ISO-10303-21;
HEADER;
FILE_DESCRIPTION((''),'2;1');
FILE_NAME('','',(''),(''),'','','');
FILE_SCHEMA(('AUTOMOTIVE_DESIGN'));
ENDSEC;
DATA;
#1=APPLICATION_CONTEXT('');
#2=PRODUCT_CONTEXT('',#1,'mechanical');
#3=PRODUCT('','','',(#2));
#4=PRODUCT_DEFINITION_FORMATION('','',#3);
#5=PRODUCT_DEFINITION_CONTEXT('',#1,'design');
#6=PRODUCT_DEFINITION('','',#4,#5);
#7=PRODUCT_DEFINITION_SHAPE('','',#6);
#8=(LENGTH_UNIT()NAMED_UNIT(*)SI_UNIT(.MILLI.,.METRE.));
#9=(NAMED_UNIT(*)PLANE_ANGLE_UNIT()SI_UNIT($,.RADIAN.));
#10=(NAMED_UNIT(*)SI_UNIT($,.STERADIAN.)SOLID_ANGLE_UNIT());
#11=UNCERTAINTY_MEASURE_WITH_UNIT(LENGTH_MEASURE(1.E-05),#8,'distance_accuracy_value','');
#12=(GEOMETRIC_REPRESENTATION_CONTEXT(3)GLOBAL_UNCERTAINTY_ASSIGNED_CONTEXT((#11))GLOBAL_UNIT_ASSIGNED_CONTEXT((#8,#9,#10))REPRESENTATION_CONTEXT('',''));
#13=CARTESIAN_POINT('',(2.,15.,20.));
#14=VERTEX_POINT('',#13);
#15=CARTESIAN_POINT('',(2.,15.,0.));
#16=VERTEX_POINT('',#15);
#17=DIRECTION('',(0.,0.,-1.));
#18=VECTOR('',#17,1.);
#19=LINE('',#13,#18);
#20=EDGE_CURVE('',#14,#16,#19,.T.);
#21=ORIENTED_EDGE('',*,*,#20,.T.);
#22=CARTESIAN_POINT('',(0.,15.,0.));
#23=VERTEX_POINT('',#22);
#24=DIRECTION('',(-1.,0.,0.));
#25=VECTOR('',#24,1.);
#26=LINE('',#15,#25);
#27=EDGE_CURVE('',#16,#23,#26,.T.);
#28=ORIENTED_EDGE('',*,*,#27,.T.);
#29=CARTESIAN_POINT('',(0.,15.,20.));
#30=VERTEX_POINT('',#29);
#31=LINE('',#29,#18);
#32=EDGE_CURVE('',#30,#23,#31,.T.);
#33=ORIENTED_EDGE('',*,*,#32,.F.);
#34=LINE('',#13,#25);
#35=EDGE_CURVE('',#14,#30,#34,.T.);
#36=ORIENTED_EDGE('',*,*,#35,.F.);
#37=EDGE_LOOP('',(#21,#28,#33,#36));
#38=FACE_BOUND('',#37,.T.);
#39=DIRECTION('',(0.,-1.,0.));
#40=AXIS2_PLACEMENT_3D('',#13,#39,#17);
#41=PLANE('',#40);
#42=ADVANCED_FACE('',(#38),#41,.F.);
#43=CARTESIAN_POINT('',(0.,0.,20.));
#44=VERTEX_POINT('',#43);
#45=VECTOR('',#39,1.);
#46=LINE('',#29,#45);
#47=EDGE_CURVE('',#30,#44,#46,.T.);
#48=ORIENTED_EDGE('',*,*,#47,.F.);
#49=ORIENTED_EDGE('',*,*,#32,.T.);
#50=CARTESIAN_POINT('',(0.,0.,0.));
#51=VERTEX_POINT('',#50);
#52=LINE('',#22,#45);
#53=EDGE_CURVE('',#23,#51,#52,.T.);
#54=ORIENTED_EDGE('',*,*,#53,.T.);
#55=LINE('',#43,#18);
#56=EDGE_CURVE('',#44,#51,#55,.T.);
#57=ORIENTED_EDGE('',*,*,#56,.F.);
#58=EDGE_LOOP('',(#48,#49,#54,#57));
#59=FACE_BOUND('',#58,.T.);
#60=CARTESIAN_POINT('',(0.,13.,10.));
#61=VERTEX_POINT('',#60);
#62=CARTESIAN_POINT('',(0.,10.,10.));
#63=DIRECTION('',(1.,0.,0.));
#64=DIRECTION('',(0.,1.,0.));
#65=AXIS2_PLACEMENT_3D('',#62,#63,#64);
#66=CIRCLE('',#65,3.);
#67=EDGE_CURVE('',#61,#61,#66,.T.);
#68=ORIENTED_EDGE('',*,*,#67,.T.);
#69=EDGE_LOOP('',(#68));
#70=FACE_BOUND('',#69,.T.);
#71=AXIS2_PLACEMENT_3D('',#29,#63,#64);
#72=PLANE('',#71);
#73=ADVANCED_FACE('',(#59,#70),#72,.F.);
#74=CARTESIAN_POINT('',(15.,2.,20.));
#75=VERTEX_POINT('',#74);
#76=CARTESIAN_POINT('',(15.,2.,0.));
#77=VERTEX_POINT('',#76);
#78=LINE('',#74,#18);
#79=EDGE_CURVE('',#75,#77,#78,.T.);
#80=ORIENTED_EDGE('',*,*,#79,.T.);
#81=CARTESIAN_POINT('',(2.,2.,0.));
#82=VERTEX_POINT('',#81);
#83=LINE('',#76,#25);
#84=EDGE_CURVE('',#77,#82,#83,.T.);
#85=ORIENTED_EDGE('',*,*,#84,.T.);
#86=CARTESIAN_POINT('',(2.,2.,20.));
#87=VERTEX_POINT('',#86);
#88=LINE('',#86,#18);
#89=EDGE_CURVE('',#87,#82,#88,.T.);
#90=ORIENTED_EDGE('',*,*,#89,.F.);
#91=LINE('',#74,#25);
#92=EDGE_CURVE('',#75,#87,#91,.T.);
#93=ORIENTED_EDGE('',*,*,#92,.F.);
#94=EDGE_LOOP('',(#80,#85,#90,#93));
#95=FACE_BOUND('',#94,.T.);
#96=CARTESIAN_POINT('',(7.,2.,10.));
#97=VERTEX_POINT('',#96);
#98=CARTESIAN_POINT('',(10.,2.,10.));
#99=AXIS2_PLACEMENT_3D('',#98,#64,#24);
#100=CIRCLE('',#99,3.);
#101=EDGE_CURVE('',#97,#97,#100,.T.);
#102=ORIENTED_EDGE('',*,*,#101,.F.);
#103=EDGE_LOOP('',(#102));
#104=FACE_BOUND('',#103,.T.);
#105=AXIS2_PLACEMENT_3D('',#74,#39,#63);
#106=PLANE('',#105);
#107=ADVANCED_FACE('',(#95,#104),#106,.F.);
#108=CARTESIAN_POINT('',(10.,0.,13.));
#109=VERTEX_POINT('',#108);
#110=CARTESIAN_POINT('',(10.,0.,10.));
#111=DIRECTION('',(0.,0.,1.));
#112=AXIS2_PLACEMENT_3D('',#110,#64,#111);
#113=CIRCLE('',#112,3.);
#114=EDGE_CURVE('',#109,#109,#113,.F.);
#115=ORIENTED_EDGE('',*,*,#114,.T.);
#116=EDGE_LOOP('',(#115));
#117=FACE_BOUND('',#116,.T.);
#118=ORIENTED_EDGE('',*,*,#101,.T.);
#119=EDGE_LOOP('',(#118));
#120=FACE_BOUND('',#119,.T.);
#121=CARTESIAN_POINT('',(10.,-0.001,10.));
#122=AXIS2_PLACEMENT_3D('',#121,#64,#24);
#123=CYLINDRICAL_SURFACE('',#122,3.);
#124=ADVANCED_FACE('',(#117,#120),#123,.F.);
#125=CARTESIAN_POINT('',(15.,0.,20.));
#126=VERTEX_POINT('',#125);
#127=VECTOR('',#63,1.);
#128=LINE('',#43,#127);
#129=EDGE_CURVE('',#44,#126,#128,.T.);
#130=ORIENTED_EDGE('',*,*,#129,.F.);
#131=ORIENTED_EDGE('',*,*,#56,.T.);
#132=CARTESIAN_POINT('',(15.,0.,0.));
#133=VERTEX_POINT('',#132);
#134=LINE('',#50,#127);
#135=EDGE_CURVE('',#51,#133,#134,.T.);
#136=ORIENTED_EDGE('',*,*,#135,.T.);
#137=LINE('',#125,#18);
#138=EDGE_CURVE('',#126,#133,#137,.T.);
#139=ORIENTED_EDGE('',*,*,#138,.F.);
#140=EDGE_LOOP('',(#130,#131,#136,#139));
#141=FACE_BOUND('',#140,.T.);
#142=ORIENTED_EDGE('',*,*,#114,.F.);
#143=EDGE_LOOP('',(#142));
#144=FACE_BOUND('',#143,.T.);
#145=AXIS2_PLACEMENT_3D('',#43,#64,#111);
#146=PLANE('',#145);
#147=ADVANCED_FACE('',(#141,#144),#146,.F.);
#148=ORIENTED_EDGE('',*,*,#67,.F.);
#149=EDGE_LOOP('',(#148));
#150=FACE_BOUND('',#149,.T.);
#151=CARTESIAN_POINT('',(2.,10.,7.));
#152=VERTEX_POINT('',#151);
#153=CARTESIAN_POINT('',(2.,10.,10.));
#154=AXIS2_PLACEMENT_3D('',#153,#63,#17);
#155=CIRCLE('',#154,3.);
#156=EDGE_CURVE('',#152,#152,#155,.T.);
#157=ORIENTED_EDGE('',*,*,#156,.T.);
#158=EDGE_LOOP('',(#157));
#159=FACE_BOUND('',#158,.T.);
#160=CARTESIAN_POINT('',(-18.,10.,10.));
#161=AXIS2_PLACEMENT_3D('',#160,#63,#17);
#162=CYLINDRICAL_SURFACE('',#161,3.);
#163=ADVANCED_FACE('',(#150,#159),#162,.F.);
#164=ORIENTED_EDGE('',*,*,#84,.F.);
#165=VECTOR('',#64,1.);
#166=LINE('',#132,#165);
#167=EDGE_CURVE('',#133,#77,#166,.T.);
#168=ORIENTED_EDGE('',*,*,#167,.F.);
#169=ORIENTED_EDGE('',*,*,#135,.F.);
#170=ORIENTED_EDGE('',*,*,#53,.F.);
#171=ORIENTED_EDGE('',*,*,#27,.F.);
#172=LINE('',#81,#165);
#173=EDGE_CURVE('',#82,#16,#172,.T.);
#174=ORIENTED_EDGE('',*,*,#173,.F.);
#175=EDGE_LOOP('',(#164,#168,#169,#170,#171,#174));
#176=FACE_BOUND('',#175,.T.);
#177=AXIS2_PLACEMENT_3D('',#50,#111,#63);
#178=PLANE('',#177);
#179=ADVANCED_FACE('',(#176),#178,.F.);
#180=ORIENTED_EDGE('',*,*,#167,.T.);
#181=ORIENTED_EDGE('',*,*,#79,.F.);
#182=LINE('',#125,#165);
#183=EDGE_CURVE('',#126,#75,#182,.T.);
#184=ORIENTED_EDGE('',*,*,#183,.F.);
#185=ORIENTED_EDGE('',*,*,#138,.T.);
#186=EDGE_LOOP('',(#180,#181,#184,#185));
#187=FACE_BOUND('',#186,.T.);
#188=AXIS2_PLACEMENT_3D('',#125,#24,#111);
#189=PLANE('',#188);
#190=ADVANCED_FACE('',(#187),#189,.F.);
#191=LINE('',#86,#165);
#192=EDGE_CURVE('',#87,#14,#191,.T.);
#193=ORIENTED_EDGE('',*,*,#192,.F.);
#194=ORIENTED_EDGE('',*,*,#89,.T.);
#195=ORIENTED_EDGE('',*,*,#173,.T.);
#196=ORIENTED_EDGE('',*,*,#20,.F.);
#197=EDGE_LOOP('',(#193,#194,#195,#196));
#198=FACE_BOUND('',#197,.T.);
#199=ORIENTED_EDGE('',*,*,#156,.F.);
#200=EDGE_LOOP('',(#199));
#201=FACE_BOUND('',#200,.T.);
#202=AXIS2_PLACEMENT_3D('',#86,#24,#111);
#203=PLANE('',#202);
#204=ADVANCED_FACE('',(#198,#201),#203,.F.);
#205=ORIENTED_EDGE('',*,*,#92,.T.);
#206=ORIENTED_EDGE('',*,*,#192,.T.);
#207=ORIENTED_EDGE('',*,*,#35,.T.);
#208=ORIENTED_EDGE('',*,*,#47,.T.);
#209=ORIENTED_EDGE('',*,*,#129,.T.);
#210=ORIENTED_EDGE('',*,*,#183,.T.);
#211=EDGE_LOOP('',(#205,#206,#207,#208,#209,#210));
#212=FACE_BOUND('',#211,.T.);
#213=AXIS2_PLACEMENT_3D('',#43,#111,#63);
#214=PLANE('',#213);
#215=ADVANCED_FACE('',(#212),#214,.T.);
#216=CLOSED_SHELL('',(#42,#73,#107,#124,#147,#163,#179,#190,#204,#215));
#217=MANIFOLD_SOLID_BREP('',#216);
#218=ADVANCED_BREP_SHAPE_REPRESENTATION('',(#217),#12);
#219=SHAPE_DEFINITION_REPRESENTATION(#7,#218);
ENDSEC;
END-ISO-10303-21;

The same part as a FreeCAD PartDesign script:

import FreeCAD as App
import Part
import Sketcher

V = App.Vector


def add_polygon(sketch, points):
    """Adds a closed chain of lines whose ends are joined by coincident constraints."""
    first, n = sketch.GeometryCount, len(points)
    for a, b in zip(points, points[1:] + points[:1]):
        sketch.addGeometry(Part.LineSegment(App.Vector(*a, 0), App.Vector(*b, 0)), False)
    for i in range(n):
        sketch.addConstraint(Sketcher.Constraint("Coincident", first + i, 2, first + (i + 1) % n, 1))

doc = App.newDocument("Part")
body = doc.addObject("PartDesign::Body", "Body")

# Sketch on XY plane
sketch1 = doc.addObject("Sketcher::SketchObject", "Sketch")
body.addObject(sketch1)
sketch1.AttachmentSupport = (doc.XY_Plane, [""])
sketch1.MapMode = "FlatFace"
add_polygon(sketch1, [(0, 0), (15, 0), (15, 2), (2, 2), (2, 15), (0, 15)])  # lines 0-5
sketch1.addConstraint([
    Sketcher.Constraint("Horizontal", 0),
    Sketcher.Constraint("Vertical", 1),
    Sketcher.Constraint("Horizontal", 2),
    Sketcher.Constraint("Vertical", 3),
    Sketcher.Constraint("Horizontal", 4),
    Sketcher.Constraint("Vertical", 5),
    Sketcher.Constraint("Coincident", 5, 2, -1, 1),
    Sketcher.Constraint("Equal", 4, 1),
    Sketcher.Constraint("Equal", 2, 3),
    Sketcher.Constraint("DistanceX", 0, 1, 0, 2, 15.0),
    Sketcher.Constraint("DistanceX", 2, 2, 2, 1, 13.0),
])
pad1 = doc.addObject("PartDesign::Pad", "Pad")
body.addObject(pad1)
pad1.Profile = sketch1
pad1.Length = 20

# Sketch on XZ plane
sketch2 = doc.addObject("Sketcher::SketchObject", "Sketch001")
body.addObject(sketch2)
sketch2.AttachmentSupport = (doc.XZ_Plane, [""])
sketch2.MapMode = "FlatFace"
sketch2.AttachmentOffset = App.Placement(V(0, 0, -2), App.Rotation())
sketch2.addGeometry(Part.Circle(V(10, 10, 0), V(0, 0, 1), 3), False)
sketch2.addConstraint([
    Sketcher.Constraint("Diameter", 0, 6.0),
    Sketcher.Constraint("DistanceX", -1, 1, 0, 3, 10.0),
    Sketcher.Constraint("DistanceY", -1, 1, 0, 3, 10.0),
])
pocket1 = doc.addObject("PartDesign::Pocket", "Pocket")
body.addObject(pocket1)
pocket1.Profile = sketch2
pocket1.Type = "UpToFirst"
pocket1.Reversed = True

# Sketch on YZ plane
sketch3 = doc.addObject("Sketcher::SketchObject", "Sketch002")
body.addObject(sketch3)
sketch3.AttachmentSupport = (doc.YZ_Plane, [""])
sketch3.MapMode = "FlatFace"
sketch3.AttachmentOffset = App.Placement(V(0, 0, 2), App.Rotation())
sketch3.addGeometry(Part.Circle(V(10, 10, 0), V(0, 0, 1), 3), False)
sketch3.addConstraint([
    Sketcher.Constraint("Diameter", 0, 6.0),
    Sketcher.Constraint("DistanceX", -1, 1, 0, 3, 10.0),
    Sketcher.Constraint("DistanceY", -1, 1, 0, 3, 10.0),
])
pocket2 = doc.addObject("PartDesign::Pocket", "Pocket001")
body.addObject(pocket2)
pocket2.Profile = sketch3
pocket2.Length = 20

doc.recompute()
